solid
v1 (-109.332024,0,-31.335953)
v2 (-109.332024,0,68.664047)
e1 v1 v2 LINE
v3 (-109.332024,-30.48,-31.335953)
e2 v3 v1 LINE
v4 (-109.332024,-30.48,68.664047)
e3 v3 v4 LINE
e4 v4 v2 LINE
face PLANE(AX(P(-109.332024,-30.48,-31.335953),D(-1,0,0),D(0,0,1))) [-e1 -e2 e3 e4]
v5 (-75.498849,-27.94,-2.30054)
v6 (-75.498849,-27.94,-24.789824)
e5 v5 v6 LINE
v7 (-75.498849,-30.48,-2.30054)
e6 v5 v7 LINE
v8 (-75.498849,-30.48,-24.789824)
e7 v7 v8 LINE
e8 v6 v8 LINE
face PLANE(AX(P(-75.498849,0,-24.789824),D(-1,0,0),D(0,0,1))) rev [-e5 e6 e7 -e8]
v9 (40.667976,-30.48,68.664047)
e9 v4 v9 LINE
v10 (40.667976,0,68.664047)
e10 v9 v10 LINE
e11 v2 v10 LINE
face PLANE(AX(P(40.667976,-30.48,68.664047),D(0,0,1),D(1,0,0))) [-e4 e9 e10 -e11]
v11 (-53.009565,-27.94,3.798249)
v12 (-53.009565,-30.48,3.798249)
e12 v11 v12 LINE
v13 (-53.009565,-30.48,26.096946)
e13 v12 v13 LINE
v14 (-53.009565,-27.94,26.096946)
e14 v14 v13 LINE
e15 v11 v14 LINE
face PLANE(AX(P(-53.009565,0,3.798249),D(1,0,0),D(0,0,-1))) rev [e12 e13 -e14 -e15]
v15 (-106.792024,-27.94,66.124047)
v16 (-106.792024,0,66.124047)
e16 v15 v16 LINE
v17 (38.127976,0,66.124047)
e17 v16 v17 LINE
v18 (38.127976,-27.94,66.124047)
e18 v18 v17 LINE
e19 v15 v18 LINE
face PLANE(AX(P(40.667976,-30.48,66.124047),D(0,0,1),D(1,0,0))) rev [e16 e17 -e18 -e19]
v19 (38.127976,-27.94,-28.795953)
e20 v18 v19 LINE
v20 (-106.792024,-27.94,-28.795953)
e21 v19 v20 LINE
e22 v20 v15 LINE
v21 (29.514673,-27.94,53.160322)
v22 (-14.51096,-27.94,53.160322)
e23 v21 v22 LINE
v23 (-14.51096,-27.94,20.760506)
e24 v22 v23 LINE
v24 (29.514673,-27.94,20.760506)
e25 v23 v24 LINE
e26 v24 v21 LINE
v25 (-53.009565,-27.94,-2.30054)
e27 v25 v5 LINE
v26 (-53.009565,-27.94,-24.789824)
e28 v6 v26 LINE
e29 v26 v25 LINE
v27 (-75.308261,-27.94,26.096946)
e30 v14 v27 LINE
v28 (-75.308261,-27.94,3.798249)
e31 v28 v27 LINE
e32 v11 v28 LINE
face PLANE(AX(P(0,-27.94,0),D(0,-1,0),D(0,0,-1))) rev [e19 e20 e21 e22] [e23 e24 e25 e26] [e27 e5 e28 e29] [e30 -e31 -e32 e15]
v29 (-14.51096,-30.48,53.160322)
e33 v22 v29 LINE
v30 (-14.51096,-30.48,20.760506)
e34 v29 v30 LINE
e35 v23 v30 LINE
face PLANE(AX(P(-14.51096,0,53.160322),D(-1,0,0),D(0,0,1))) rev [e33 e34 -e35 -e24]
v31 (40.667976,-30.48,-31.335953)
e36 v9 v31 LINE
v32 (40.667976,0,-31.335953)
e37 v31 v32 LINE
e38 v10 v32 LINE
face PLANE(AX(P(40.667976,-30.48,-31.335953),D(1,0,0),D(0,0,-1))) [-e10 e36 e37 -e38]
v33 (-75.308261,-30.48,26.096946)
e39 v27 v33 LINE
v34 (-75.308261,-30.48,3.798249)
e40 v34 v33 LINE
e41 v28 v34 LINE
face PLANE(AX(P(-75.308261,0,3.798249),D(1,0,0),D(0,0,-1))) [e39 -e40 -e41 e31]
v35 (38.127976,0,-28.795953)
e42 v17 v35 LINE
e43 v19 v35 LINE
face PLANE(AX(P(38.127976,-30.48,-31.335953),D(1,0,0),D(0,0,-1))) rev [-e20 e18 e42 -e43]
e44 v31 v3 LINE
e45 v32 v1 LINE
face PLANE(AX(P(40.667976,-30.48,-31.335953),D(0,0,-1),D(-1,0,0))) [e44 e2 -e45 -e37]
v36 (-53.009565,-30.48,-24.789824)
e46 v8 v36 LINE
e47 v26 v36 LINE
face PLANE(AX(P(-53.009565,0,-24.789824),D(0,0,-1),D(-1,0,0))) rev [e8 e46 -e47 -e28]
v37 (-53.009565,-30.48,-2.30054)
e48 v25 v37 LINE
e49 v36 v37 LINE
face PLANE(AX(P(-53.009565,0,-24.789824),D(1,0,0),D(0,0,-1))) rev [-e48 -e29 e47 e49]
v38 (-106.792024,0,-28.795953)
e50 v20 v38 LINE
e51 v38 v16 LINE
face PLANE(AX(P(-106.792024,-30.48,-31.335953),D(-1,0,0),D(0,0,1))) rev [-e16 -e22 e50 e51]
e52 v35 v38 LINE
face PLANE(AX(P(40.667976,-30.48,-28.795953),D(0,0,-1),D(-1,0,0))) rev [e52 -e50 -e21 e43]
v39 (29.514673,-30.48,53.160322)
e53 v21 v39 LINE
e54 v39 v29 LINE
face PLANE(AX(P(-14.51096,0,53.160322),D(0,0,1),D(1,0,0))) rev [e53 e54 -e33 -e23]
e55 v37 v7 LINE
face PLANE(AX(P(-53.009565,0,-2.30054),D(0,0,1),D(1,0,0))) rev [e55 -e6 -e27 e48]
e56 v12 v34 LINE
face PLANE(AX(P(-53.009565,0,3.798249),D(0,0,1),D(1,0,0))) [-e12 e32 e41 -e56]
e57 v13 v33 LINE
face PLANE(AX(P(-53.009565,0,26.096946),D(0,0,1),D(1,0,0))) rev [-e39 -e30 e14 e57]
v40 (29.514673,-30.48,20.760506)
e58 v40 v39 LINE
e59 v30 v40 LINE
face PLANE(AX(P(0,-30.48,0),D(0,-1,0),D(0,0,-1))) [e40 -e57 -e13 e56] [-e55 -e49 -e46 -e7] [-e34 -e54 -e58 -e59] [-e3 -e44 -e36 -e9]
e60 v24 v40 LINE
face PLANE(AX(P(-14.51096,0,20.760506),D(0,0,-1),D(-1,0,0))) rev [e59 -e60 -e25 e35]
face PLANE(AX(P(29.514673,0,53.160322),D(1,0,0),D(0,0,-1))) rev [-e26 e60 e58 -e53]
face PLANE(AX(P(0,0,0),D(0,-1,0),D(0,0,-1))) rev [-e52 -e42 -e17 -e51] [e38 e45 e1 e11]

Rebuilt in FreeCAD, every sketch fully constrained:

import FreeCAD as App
import Part
import Sketcher


def faces_at(feature, points):
    """Names of the faces that lie closest to the given points."""
    faces = feature.Shape.Faces
    near = lambda p: min(range(len(faces)), key=lambda i: faces[i].distToShape(Part.Vertex(*p))[0])
    return sorted({f"Face{near(p) + 1}" for p in points})


def add_polygon(sketch, points):
    """Adds a closed chain of lines whose ends are joined by coincident constraints."""
    first, n = sketch.GeometryCount, len(points)
    for a, b in zip(points, points[1:] + points[:1]):
        sketch.addGeometry(Part.LineSegment(App.Vector(*a, 0), App.Vector(*b, 0)), False)
    for i in range(n):
        sketch.addConstraint(Sketcher.Constraint("Coincident", first + i, 2, first + (i + 1) % n, 1))

doc = App.newDocument("Part")
body = doc.addObject("PartDesign::Body", "Body")

# Sketch on XZ plane
sketch1 = body.newObject("Sketcher::SketchObject", "Sketch")
sketch1.AttachmentSupport = (doc.getObject("XZ_Plane"), [""])
sketch1.MapMode = "FlatFace"
add_polygon(sketch1, [(-109, -31), (-109, 69), (41, 69), (41, -31)])  # lines 0-3
sketch1.addConstraint([
    Sketcher.Constraint("Vertical", 0),
    Sketcher.Constraint("Horizontal", 1),
    Sketcher.Constraint("Vertical", 2),
    Sketcher.Constraint("Horizontal", 3),
    Sketcher.Constraint("DistanceX", 1, 1, 1, 2, 150.0),
    Sketcher.Constraint("DistanceY", 0, 1, 0, 2, 100.0),
    Sketcher.Constraint("DistanceX", 0, 2, -1, 1, 109.332024),
    Sketcher.Constraint("DistanceY", -1, 1, 0, 2, 68.664047),
])
pad1 = body.newObject("PartDesign::Pad", "Pad")
pad1.Profile = sketch1
pad1.Length = 30.48
doc.recompute()

thickness = body.newObject("PartDesign::Thickness", "Thickness")
thickness.Base = (pad1, faces_at(pad1, [(-34.332, 0, 18.664)]))
thickness.Value = 2.54
thickness.Reversed = True
thickness.Join = "Intersection"

# Sketch on XZ plane
sketch2 = body.newObject("Sketcher::SketchObject", "Sketch001")
sketch2.AttachmentSupport = (doc.getObject("XZ_Plane"), [""])
sketch2.MapMode = "FlatFace"
sketch2.AttachmentOffset = App.Placement(App.Vector(0, 0, 30.48), App.Rotation())
add_polygon(sketch2, [(-15, 53), (-15, 21), (30, 21), (30, 53)])  # lines 0-3
sketch2.addConstraint([
    Sketcher.Constraint("Vertical", 0),
    Sketcher.Constraint("Horizontal", 1),
    Sketcher.Constraint("Vertical", 2),
    Sketcher.Constraint("Horizontal", 3),
    Sketcher.Constraint("DistanceX", 1, 1, 1, 2, 44.025632),
    Sketcher.Constraint("DistanceY", 0, 2, 0, 1, 32.399816),
    Sketcher.Constraint("DistanceX", 0, 2, -1, 1, 14.51096),
    Sketcher.Constraint("DistanceY", -1, 1, 2, 2, 53.160322),
])
pocket1 = body.newObject("PartDesign::Pocket", "Pocket")
pocket1.Profile = sketch2
pocket1.Length = 30.48

# Sketch on XZ plane
sketch3 = body.newObject("Sketcher::SketchObject", "Sketch002")
sketch3.AttachmentSupport = (doc.getObject("XZ_Plane"), [""])
sketch3.MapMode = "FlatFace"
sketch3.AttachmentOffset = App.Placement(App.Vector(0, 0, 30.48), App.Rotation())
add_polygon(sketch3, [(-53, 4), (-53, 26), (-75, 26), (-75, 4)])  # lines 0-3
sketch3.addConstraint([
    Sketcher.Constraint("Vertical", 0),
    Sketcher.Constraint("Horizontal", 1),
    Sketcher.Constraint("Vertical", 2),
    Sketcher.Constraint("Horizontal", 3),
    Sketcher.Constraint("Equal", 3, 0),
    Sketcher.Constraint("DistanceX", 1, 2, 1, 1, 22.298697),
    Sketcher.Constraint("DistanceX", 1, 2, -1, 1, 75.308261),
    Sketcher.Constraint("DistanceY", -1, 1, 2, 2, 3.798249),
])
pocket2 = body.newObject("PartDesign::Pocket", "Pocket001")
pocket2.Profile = sketch3
pocket2.Length = 30.48

# Sketch on XZ plane
sketch4 = body.newObject("Sketcher::SketchObject", "Sketch003")
sketch4.AttachmentSupport = (doc.getObject("XZ_Plane"), [""])
sketch4.MapMode = "FlatFace"
sketch4.AttachmentOffset = App.Placement(App.Vector(0, 0, 30.48), App.Rotation())
add_polygon(sketch4, [(-75, -2), (-75, -25), (-53, -25), (-53, -2)])  # lines 0-3
sketch4.addConstraint([
    Sketcher.Constraint("Vertical", 0),
    Sketcher.Constraint("Horizontal", 1),
    Sketcher.Constraint("Vertical", 2),
    Sketcher.Constraint("Horizontal", 3),
    Sketcher.Constraint("Equal", 3, 0),
    Sketcher.Constraint("DistanceX", 1, 1, 1, 2, 22.489284),
    Sketcher.Constraint("DistanceX", 0, 2, -1, 1, 75.498849),
    Sketcher.Constraint("DistanceY", 2, 2, -1, 1, 2.30054),
])
pocket3 = body.newObject("PartDesign::Pocket", "Pocket002")
pocket3.Profile = sketch4
pocket3.Length = 30.48

doc.recompute()
